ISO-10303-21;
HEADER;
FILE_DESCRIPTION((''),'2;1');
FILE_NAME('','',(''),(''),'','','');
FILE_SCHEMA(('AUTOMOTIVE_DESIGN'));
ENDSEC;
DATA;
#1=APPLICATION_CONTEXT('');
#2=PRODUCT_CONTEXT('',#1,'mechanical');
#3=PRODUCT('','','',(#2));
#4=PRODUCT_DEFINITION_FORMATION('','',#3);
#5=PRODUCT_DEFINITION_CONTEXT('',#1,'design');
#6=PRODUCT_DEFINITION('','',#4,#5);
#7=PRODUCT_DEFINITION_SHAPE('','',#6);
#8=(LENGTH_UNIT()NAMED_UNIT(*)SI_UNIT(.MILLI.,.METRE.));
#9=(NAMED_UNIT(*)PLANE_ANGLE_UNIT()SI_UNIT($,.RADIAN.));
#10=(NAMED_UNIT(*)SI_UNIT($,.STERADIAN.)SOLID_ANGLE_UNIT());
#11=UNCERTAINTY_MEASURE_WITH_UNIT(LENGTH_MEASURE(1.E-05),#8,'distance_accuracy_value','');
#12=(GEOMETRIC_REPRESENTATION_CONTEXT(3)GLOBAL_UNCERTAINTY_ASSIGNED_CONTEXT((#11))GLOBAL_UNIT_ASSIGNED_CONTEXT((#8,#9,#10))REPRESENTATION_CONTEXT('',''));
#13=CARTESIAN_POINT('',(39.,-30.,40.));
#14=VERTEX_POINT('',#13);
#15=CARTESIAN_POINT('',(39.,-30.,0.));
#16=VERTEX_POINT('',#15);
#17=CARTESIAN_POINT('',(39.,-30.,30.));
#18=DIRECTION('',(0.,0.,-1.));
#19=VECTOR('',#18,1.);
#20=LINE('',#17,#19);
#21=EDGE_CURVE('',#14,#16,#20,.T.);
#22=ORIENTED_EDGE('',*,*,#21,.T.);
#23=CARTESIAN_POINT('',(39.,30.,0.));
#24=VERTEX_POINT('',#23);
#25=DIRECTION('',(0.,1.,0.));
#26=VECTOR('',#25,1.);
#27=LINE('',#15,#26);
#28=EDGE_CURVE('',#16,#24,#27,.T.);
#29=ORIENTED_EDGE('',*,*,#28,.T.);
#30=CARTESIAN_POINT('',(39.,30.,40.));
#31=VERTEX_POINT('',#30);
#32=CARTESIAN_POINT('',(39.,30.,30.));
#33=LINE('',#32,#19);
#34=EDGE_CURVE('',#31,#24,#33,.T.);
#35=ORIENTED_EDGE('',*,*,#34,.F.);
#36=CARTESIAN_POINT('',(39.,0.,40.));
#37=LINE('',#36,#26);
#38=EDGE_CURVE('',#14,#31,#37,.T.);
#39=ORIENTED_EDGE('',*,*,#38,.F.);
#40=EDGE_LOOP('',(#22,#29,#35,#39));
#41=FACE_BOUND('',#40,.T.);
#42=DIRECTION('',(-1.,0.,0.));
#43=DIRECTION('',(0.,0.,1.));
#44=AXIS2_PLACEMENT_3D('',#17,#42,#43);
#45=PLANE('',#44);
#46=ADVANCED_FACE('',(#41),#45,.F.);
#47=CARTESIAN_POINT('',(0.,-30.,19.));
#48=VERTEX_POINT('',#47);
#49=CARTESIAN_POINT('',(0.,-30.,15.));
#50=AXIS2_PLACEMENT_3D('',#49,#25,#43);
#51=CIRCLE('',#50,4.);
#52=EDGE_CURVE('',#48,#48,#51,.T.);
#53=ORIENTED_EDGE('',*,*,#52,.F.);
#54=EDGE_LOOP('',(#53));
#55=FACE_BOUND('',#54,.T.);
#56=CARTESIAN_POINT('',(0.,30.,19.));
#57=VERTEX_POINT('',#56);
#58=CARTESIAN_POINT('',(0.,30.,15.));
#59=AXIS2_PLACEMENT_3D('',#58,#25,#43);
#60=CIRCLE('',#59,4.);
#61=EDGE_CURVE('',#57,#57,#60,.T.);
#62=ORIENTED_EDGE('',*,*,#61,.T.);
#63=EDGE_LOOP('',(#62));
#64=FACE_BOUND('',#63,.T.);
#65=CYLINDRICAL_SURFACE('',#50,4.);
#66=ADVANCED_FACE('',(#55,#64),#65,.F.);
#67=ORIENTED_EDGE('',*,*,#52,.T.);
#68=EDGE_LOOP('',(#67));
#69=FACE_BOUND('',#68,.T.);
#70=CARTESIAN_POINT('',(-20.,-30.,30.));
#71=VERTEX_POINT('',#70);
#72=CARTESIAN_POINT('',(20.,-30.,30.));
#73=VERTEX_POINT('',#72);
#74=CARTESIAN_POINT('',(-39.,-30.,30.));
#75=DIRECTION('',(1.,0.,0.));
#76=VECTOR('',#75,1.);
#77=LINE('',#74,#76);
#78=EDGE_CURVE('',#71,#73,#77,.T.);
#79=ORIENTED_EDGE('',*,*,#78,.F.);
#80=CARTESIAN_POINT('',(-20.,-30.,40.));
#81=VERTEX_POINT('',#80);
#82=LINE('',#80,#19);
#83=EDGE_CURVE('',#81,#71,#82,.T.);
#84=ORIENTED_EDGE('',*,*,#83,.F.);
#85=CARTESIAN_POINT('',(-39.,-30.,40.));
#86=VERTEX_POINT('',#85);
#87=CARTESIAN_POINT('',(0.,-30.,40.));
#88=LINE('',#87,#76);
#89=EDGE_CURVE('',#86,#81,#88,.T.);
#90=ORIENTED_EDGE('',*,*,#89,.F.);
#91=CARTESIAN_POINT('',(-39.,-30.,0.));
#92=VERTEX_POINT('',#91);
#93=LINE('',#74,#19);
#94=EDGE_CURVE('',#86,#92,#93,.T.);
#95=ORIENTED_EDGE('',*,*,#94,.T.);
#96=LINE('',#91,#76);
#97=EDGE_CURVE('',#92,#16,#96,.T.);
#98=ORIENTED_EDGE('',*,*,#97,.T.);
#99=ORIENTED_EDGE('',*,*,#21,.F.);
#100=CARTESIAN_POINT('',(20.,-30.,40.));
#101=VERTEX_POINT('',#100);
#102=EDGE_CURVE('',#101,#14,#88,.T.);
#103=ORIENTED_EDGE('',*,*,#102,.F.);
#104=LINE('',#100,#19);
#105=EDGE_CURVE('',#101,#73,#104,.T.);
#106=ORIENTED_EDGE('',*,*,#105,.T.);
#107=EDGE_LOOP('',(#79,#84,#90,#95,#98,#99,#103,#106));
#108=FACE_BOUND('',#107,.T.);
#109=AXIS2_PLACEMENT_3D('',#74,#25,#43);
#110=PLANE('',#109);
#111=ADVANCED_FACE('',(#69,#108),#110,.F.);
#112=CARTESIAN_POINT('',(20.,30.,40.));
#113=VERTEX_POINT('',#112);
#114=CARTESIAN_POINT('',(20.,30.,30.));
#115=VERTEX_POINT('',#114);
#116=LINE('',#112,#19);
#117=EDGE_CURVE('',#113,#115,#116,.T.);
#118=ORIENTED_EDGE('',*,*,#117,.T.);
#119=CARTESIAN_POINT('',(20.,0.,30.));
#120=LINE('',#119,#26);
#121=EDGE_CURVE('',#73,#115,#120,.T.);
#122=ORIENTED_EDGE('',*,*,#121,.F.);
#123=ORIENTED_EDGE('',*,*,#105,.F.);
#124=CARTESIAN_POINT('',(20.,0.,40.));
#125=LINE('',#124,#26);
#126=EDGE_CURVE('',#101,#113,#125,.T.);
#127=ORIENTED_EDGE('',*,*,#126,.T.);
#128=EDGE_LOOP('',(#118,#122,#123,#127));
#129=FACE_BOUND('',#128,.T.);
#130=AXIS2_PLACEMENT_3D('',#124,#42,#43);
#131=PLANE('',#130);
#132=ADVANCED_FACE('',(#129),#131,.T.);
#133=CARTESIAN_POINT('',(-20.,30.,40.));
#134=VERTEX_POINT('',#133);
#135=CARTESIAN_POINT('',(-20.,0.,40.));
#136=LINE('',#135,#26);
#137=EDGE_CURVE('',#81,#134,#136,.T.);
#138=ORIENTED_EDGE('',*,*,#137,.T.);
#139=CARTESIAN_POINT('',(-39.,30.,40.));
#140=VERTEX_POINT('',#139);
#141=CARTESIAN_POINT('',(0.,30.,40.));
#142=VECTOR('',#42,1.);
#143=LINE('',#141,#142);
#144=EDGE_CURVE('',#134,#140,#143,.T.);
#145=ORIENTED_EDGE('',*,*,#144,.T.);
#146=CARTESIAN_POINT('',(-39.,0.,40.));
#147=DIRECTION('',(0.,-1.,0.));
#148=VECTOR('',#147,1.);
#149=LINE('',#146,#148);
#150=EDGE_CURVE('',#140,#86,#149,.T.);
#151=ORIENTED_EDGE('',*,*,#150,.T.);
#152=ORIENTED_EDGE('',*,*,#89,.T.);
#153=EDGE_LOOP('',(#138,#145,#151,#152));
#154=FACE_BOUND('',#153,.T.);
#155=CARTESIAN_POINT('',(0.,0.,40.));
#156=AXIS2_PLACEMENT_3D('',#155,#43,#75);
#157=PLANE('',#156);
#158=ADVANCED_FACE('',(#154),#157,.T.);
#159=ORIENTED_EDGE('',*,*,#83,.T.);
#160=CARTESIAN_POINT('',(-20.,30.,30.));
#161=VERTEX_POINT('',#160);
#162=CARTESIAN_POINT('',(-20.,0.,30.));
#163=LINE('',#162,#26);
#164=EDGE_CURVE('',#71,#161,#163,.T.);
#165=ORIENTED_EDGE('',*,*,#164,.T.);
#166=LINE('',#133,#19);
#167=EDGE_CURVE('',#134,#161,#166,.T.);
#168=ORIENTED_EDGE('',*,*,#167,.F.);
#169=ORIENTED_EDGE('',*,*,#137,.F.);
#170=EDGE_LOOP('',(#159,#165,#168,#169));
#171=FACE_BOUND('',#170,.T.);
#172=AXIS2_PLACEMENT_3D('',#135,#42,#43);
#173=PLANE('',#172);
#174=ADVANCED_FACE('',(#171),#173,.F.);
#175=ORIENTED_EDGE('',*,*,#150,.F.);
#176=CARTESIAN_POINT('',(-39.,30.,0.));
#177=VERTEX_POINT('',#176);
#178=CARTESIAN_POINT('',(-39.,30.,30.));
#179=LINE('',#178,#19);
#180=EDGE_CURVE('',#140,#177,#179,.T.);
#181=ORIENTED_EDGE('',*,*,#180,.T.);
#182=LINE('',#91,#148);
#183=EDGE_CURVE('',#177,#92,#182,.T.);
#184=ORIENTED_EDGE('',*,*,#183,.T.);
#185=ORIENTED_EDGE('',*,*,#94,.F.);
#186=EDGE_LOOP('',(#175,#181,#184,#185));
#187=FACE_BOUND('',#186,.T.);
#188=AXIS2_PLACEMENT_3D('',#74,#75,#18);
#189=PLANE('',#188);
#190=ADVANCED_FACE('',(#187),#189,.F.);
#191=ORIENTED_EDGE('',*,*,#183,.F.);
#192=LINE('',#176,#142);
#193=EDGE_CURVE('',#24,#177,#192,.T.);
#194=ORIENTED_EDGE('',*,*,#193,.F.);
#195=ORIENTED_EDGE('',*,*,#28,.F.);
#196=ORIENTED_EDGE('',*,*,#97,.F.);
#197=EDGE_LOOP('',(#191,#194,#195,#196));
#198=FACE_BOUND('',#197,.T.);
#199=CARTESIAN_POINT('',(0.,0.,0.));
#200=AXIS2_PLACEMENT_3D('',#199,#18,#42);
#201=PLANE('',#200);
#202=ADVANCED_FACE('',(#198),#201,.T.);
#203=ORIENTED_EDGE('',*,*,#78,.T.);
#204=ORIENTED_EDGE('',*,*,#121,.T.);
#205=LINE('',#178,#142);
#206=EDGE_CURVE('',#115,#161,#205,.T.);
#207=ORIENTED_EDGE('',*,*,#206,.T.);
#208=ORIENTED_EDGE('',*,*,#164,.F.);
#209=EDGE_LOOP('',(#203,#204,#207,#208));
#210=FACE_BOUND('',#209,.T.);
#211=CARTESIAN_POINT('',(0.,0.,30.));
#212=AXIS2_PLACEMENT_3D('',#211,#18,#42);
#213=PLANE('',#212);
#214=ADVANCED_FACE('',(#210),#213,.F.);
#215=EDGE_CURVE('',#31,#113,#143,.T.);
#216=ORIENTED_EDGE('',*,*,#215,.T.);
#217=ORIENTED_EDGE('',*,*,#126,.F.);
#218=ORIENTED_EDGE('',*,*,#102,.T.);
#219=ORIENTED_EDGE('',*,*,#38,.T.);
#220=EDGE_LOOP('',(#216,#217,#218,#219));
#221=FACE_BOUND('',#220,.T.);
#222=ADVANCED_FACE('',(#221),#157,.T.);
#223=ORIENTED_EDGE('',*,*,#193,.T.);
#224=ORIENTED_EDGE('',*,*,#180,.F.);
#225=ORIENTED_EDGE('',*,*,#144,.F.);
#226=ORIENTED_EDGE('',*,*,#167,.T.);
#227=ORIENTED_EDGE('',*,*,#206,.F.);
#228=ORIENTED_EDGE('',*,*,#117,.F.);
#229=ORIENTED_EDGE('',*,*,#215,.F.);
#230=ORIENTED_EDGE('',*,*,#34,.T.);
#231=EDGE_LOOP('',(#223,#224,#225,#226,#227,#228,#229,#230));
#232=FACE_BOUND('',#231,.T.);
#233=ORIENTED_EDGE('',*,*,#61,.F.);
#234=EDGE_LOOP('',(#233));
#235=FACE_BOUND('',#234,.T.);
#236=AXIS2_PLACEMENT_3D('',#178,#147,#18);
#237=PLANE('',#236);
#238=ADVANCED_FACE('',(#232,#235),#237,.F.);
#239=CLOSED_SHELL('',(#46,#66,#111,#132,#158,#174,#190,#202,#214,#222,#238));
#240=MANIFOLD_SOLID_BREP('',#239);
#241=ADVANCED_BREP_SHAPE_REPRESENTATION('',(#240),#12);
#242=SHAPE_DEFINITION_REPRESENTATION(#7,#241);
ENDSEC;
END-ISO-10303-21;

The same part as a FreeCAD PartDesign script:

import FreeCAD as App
import Part
import Sketcher
from FreeCAD import Vector
Q = App.Units.Quantity

doc = App.newDocument("Part")
body = doc.addObject("PartDesign::Body", "Body")

# Sketch on XY plane
sketch1 = body.newObject("Sketcher::SketchObject", "Sketch")
sketch1.AttachmentSupport = (doc.getObject("XY_Plane"), [""])
sketch1.MapMode = "FlatFace"
sketch1.addGeometry(Part.LineSegment(Vector(-39, 30, 0), Vector(-39, -30, 0)), False)
sketch1.addGeometry(Part.LineSegment(Vector(-39, -30, 0), Vector(39, -30, 0)), False)
sketch1.addGeometry(Part.LineSegment(Vector(39, -30, 0), Vector(39, 30, 0)), False)
sketch1.addGeometry(Part.LineSegment(Vector(39, 30, 0), Vector(-39, 30, 0)), False)
sketch1.addConstraint(Sketcher.Constraint("Coincident", 0, 2, 1, 1))
sketch1.addConstraint(Sketcher.Constraint("Coincident", 1, 2, 2, 1))
sketch1.addConstraint(Sketcher.Constraint("Coincident", 2, 2, 3, 1))
sketch1.addConstraint(Sketcher.Constraint("Coincident", 3, 2, 0, 1))
sketch1.addConstraint(Sketcher.Constraint("Vertical", 0))
sketch1.addConstraint(Sketcher.Constraint("Horizontal", 1))
sketch1.addConstraint(Sketcher.Constraint("Vertical", 2))
sketch1.addConstraint(Sketcher.Constraint("Horizontal", 3))
sketch1.addConstraint(Sketcher.Constraint("Symmetric", 0, 2, 2, 2, -1, 1))
sketch1.addConstraint(Sketcher.Constraint("DistanceX", 1, 1, 1, 2, Q("78 mm")))
sketch1.addConstraint(Sketcher.Constraint("DistanceY", 0, 2, 0, 1, Q("60 mm")))
pad1 = body.newObject("PartDesign::Pad", "Pad")
pad1.Profile = sketch1
pad1.Length = 30

# Sketch on XY plane
sketch2 = body.newObject("Sketcher::SketchObject", "Sketch001")
sketch2.AttachmentSupport = (doc.getObject("XY_Plane"), [""])
sketch2.MapMode = "FlatFace"
sketch2.AttachmentOffset = App.Placement(Vector(0, 0, 30), App.Rotation())
sketch2.addGeometry(Part.LineSegment(Vector(20, 30, 0), Vector(20, -30, 0)), False)
sketch2.addGeometry(Part.LineSegment(Vector(20, -30, 0), Vector(39, -30, 0)), False)
sketch2.addGeometry(Part.LineSegment(Vector(39, -30, 0), Vector(39, 30, 0)), False)
sketch2.addGeometry(Part.LineSegment(Vector(39, 30, 0), Vector(20, 30, 0)), False)
sketch2.addGeometry(Part.LineSegment(Vector(-39, 30, 0), Vector(-39, -30, 0)), False)
sketch2.addGeometry(Part.LineSegment(Vector(-39, -30, 0), Vector(-20, -30, 0)), False)
sketch2.addGeometry(Part.LineSegment(Vector(-20, -30, 0), Vector(-20, 30, 0)), False)
sketch2.addGeometry(Part.LineSegment(Vector(-20, 30, 0), Vector(-39, 30, 0)), False)
sketch2.addConstraint(Sketcher.Constraint("Coincident", 0, 2, 1, 1))
sketch2.addConstraint(Sketcher.Constraint("Coincident", 1, 2, 2, 1))
sketch2.addConstraint(Sketcher.Constraint("Coincident", 2, 2, 3, 1))
sketch2.addConstraint(Sketcher.Constraint("Coincident", 3, 2, 0, 1))
sketch2.addConstraint(Sketcher.Constraint("Coincident", 4, 2, 5, 1))
sketch2.addConstraint(Sketcher.Constraint("Coincident", 5, 2, 6, 1))
sketch2.addConstraint(Sketcher.Constraint("Coincident", 6, 2, 7, 1))
sketch2.addConstraint(Sketcher.Constraint("Coincident", 7, 2, 4, 1))
sketch2.addConstraint(Sketcher.Constraint("Vertical", 0))
sketch2.addConstraint(Sketcher.Constraint("Horizontal", 1))
sketch2.addConstraint(Sketcher.Constraint("Vertical", 2))
sketch2.addConstraint(Sketcher.Constraint("Horizontal", 3))
sketch2.addConstraint(Sketcher.Constraint("Vertical", 4))
sketch2.addConstraint(Sketcher.Constraint("Horizontal", 5))
sketch2.addConstraint(Sketcher.Constraint("Vertical", 6))
sketch2.addConstraint(Sketcher.Constraint("Horizontal", 7))
sketch2.addConstraint(Sketcher.Constraint("Symmetric", 2, 2, 4, 2, -1, 1))
sketch2.addConstraint(Sketcher.Constraint("Symmetric", 0, 2, 6, 2, -1, 1))
sketch2.addConstraint(Sketcher.Constraint("Horizontal", 1, 2, 4, 2))
sketch2.addConstraint(Sketcher.Constraint("DistanceX", 1, 1, 1, 2, Q("19 mm")))
sketch2.addConstraint(Sketcher.Constraint("DistanceY", 0, 2, 0, 1, Q("60 mm")))
sketch2.addConstraint(Sketcher.Constraint("DistanceX", -1, 1, 0, 2, Q("20 mm")))
pad2 = body.newObject("PartDesign::Pad", "Pad001")
pad2.Profile = sketch2
pad2.Length = 10

# Sketch on XZ plane
sketch3 = body.newObject("Sketcher::SketchObject", "Sketch002")
sketch3.AttachmentSupport = (doc.getObject("XZ_Plane"), [""])
sketch3.MapMode = "FlatFace"
sketch3.AttachmentOffset = App.Placement(Vector(0, 0, -30), App.Rotation())
sketch3.addGeometry(Part.Circle(Vector(0, 15, 0), Vector(0, 0, 1), 4), False)
sketch3.addConstraint(Sketcher.Constraint("PointOnObject", 0, 3, -2))
sketch3.addConstraint(Sketcher.Constraint("Diameter", 0, Q("8 mm")))
sketch3.addConstraint(Sketcher.Constraint("DistanceY", -1, 1, 0, 3, Q("15 mm")))
pocket1 = body.newObject("PartDesign::Pocket", "Pocket")
pocket1.Profile = sketch3
pocket1.Length = 60
pocket1.Reversed = True

doc.recompute()
